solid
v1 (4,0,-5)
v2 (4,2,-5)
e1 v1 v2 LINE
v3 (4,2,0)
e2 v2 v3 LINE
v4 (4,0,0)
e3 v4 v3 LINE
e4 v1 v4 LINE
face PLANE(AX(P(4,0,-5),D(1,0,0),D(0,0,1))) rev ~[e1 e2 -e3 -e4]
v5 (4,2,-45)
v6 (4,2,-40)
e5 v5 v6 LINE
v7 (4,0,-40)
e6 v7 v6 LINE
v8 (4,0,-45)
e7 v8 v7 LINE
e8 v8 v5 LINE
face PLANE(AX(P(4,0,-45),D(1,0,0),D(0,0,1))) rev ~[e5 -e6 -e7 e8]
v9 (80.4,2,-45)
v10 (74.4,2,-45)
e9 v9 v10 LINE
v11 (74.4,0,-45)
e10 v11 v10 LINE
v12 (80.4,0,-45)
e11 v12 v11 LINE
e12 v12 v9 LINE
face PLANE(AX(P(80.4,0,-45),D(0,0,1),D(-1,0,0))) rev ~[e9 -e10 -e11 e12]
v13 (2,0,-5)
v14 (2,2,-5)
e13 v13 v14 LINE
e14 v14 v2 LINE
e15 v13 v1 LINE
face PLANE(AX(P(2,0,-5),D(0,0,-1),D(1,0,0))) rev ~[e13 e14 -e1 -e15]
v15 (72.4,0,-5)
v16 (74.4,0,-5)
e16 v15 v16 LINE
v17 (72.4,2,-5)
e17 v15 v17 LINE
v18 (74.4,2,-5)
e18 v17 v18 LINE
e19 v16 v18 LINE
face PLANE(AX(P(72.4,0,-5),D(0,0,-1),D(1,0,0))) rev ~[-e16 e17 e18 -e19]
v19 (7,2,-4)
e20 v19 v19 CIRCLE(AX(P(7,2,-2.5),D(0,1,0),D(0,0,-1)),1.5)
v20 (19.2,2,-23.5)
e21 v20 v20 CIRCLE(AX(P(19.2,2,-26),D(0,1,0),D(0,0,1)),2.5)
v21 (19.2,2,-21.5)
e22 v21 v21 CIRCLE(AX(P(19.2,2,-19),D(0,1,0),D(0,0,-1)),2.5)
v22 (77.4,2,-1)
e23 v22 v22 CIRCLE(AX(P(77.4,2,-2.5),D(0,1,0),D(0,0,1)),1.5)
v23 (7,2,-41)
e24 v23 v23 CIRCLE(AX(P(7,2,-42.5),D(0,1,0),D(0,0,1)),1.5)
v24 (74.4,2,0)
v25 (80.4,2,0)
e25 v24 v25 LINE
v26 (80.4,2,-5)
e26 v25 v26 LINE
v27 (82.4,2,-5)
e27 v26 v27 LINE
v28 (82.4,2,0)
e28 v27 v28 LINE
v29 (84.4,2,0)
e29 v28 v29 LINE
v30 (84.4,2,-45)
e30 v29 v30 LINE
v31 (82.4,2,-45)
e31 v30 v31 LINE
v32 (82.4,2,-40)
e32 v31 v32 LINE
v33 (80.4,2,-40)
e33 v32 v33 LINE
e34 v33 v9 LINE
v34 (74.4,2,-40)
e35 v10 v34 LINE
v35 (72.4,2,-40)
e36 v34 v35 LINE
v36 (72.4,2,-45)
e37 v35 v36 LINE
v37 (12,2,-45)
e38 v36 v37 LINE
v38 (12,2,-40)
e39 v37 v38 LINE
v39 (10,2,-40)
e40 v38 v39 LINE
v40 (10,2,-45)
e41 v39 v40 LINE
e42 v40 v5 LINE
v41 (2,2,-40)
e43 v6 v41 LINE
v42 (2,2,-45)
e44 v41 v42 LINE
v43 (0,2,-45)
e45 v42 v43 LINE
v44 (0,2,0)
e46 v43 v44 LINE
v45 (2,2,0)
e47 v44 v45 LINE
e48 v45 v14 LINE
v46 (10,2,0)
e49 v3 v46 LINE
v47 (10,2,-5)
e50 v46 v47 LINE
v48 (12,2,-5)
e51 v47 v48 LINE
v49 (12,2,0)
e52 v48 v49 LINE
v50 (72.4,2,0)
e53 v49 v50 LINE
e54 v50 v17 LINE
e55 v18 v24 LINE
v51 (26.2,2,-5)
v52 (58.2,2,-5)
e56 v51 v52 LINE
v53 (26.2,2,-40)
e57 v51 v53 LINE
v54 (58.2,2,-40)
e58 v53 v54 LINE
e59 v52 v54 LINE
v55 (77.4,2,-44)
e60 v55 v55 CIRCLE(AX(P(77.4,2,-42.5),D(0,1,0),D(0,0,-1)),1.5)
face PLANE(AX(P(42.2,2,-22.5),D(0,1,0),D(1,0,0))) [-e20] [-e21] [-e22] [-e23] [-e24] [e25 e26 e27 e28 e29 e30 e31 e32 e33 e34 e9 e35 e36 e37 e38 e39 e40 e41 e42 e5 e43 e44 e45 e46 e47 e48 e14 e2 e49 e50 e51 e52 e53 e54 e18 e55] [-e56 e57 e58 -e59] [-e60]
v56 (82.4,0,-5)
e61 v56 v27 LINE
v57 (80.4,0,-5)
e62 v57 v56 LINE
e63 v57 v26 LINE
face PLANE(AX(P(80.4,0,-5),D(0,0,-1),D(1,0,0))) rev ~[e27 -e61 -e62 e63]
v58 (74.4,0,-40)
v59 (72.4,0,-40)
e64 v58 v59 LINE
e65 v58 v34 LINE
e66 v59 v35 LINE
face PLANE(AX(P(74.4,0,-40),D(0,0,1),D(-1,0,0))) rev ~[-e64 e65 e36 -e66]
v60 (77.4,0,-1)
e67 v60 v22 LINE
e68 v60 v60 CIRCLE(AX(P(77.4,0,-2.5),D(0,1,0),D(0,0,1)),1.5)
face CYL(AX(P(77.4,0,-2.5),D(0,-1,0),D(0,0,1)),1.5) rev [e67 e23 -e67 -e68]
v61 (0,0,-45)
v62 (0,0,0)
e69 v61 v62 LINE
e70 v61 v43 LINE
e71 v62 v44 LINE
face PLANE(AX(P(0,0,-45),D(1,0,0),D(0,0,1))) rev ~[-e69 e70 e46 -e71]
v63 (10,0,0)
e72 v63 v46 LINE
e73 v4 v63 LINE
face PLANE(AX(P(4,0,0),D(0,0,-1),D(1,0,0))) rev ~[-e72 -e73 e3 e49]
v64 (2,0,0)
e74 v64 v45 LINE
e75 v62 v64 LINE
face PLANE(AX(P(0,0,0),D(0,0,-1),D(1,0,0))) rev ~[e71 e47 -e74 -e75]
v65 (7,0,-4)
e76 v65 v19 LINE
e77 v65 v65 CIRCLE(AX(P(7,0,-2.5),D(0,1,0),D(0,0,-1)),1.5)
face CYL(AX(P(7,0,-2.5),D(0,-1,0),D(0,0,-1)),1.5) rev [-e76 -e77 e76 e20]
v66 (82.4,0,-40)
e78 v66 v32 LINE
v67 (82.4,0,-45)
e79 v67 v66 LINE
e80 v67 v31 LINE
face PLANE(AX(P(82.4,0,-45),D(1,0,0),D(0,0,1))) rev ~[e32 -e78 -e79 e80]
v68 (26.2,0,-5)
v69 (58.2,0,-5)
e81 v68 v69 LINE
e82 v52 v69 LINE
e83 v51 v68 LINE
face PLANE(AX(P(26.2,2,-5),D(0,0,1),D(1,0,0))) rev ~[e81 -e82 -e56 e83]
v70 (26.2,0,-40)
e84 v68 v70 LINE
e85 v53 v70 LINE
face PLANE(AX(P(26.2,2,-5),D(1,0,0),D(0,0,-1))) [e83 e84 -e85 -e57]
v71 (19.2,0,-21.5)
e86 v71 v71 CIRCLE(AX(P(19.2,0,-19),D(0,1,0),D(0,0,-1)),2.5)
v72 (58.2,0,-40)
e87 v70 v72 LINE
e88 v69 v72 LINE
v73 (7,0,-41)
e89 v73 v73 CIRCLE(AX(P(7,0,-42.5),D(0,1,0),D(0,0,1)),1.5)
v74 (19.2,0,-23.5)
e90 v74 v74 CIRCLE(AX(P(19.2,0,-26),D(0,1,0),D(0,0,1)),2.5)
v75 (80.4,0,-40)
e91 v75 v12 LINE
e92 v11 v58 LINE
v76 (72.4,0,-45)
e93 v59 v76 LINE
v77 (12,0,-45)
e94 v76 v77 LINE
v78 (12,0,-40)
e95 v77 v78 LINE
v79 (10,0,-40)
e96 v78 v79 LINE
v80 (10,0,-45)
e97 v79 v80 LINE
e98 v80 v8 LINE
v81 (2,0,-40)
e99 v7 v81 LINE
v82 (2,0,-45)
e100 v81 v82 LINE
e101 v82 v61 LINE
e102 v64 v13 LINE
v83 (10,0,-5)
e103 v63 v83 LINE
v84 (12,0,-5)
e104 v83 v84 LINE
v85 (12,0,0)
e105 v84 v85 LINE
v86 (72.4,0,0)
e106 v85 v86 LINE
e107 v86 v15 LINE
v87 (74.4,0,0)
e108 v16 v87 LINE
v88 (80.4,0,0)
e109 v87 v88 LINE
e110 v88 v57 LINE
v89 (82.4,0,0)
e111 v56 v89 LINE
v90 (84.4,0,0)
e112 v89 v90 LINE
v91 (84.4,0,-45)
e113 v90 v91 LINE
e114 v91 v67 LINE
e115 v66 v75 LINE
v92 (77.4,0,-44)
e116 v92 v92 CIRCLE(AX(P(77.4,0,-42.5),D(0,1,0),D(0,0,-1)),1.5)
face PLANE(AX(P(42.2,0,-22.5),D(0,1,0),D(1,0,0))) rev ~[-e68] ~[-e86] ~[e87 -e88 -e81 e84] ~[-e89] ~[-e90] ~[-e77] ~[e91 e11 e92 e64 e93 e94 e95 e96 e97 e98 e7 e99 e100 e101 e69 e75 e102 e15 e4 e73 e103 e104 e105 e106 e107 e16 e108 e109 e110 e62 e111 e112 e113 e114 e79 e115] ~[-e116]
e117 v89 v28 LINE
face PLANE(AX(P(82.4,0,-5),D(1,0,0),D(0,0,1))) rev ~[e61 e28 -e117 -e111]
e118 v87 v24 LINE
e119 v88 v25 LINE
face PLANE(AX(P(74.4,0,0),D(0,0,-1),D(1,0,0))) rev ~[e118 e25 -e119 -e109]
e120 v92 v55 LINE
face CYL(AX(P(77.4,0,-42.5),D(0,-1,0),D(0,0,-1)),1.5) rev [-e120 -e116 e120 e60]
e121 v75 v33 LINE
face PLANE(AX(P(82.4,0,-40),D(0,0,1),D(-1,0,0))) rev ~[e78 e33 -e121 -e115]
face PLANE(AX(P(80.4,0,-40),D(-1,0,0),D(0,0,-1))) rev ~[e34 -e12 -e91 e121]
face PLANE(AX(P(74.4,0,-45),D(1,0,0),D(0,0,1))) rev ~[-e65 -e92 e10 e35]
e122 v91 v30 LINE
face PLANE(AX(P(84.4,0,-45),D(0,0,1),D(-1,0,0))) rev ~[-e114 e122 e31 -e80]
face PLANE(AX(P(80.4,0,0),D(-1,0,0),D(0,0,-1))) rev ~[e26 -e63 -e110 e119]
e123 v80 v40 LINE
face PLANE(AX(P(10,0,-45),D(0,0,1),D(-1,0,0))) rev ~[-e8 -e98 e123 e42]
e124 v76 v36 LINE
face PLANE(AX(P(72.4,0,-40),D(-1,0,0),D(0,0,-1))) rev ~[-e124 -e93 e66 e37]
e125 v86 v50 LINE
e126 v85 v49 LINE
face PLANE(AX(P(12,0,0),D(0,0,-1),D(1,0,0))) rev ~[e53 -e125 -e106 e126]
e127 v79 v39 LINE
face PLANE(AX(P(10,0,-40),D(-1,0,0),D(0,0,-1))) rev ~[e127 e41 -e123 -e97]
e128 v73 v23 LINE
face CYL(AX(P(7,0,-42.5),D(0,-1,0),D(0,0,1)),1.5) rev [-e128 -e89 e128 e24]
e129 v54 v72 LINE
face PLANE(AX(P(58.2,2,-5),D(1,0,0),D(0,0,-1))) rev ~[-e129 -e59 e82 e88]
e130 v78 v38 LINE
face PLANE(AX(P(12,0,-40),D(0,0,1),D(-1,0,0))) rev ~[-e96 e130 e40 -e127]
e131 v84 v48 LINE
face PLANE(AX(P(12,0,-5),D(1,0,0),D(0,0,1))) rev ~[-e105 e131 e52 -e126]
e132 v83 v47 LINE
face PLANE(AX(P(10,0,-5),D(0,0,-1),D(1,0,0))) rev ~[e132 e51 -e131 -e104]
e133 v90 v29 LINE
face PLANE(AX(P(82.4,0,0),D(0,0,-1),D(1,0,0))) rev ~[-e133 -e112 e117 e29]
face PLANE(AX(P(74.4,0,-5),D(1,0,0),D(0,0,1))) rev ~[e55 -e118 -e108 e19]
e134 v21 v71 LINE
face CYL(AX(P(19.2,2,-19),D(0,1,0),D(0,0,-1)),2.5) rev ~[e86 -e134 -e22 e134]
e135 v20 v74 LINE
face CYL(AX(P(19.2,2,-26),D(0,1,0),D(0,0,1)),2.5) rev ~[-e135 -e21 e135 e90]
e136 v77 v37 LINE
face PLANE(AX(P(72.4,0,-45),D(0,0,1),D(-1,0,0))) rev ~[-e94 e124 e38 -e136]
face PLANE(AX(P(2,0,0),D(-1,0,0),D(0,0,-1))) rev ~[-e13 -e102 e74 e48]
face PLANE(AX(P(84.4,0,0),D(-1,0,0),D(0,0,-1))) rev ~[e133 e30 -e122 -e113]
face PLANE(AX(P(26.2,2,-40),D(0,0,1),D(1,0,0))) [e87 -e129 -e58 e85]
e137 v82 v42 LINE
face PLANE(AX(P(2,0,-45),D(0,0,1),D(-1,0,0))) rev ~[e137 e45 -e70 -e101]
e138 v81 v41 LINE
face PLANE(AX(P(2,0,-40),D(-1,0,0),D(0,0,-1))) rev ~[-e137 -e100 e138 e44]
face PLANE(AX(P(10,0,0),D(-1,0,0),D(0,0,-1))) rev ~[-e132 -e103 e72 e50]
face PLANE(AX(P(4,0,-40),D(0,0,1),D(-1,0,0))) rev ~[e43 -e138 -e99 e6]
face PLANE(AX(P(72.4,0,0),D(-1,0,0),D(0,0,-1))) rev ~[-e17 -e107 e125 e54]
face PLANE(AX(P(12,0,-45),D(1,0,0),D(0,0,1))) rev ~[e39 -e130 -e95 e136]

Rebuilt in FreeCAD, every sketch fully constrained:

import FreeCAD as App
import Part
import Sketcher
Q = App.Units.Quantity


def add_polygon(sketch, points):
    """Adds a closed chain of lines whose ends are joined by coincident constraints."""
    first, n = sketch.GeometryCount, len(points)
    for a, b in zip(points, points[1:] + points[:1]):
        sketch.addGeometry(Part.LineSegment(App.Vector(*a, 0), App.Vector(*b, 0)), False)
    for i in range(n):
        sketch.addConstraint(Sketcher.Constraint("Coincident", first + i, 2, first + (i + 1) % n, 1))

doc = App.newDocument("Part")
params = doc.addObject("Spreadsheet::Sheet", "Params")
for row, (alias, value) in enumerate([
    ("sketch1_diameter", "3 mm"),
    ("sketch1_width", "2 mm"),
    ("sketch1_width2", "6 mm"),
    ("sketch1_height", "5 mm"),
    ("sketch1_height2", "45 mm"),
    ("pad1_length", "2 mm"),
    ("sketch2_width", "32 mm"),
    ("sketch2_height", "35 mm"),
    ("pocket1_length", "10 mm"),
    ("sketch3_diameter", "5 mm"),
    ("pocket2_length", "10 mm"),
], start=1):
    params.set(f"A{row}", alias)
    params.set(f"B{row}", "=" + value)
    params.setAlias(f"B{row}", alias)

body = doc.addObject("PartDesign::Body", "Body")

# Sketch on XZ plane
sketch1 = body.newObject("Sketcher::SketchObject", "Sketch")
sketch1.AttachmentSupport = (doc.getObject("XZ_Plane"), [""])
sketch1.MapMode = "FlatFace"
add_polygon(sketch1, [(0, 0), (2, 0), (2, -5), (4, -5), (4, 0), (10, 0), (10, -5), (12, -5), (12, 0), (72.4, 0), (72.4, -5), (74.4, -5), (74.4, 0), (80.4, 0), (80.4, -5), (82.4, -5), (82.4, 0), (84.4, 0), (84.4, -45), (82.4, -45), (82.4, -40), (80.4, -40), (80.4, -45), (74.4, -45), (74.4, -40), (72.4, -40), (72.4, -45), (12, -45), (12, -40), (10, -40), (10, -45), (4, -45), (4, -40), (2, -40), (2, -45), (0, -45)])  # lines 0-35
sketch1.addGeometry(Part.Circle(App.Vector(7, -2.5, 0), App.Vector(0, 0, 1), 1.5), False)  # 36
sketch1.addGeometry(Part.Circle(App.Vector(77.4, -2.5, 0), App.Vector(0, 0, 1), 1.5), False)  # 37
sketch1.addGeometry(Part.Circle(App.Vector(7, -42.5, 0), App.Vector(0, 0, 1), 1.5), False)  # 38
sketch1.addGeometry(Part.Circle(App.Vector(77.4, -42.5, 0), App.Vector(0, 0, 1), 1.5), False)  # 39
sketch1.addConstraint([
    Sketcher.Constraint("Horizontal", 0),
    Sketcher.Constraint("Vertical", 1),
    Sketcher.Constraint("Horizontal", 2),
    Sketcher.Constraint("Vertical", 3),
    Sketcher.Constraint("Horizontal", 4),
    Sketcher.Constraint("Vertical", 5),
    Sketcher.Constraint("Horizontal", 6),
    Sketcher.Constraint("Vertical", 7),
    Sketcher.Constraint("Horizontal", 8),
    Sketcher.Constraint("Vertical", 9),
    Sketcher.Constraint("Horizontal", 10),
    Sketcher.Constraint("Vertical", 11),
    Sketcher.Constraint("Horizontal", 12),
    Sketcher.Constraint("Vertical", 13),
    Sketcher.Constraint("Horizontal", 14),
    Sketcher.Constraint("Vertical", 15),
    Sketcher.Constraint("Horizontal", 16),
    Sketcher.Constraint("Vertical", 17),
    Sketcher.Constraint("Horizontal", 18),
    Sketcher.Constraint("Vertical", 19),
    Sketcher.Constraint("Horizontal", 20),
    Sketcher.Constraint("Vertical", 21),
    Sketcher.Constraint("Horizontal", 22),
    Sketcher.Constraint("Vertical", 23),
    Sketcher.Constraint("Horizontal", 24),
    Sketcher.Constraint("Vertical", 25),
    Sketcher.Constraint("Horizontal", 26),
    Sketcher.Constraint("Vertical", 27),
    Sketcher.Constraint("Horizontal", 28),
    Sketcher.Constraint("Vertical", 29),
    Sketcher.Constraint("Horizontal", 30),
    Sketcher.Constraint("Vertical", 31),
    Sketcher.Constraint("Horizontal", 32),
    Sketcher.Constraint("Vertical", 33),
    Sketcher.Constraint("Horizontal", 34),
    Sketcher.Constraint("Vertical", 35),
    Sketcher.Constraint("Coincident", 35, 2, -1, 1),
    Sketcher.Constraint("Equal", 36, 37),
    Sketcher.Constraint("Equal", 37, 38),
    Sketcher.Constraint("Equal", 38, 39),
    Sketcher.Constraint("PointOnObject", 3, 2, -1),
    Sketcher.Constraint("PointOnObject", 7, 2, -1),
    Sketcher.Constraint("PointOnObject", 11, 2, -1),
    Sketcher.Constraint("PointOnObject", 15, 2, -1),
    Sketcher.Constraint("Horizontal", 36, 3, 37, 3),
    Sketcher.Constraint("Horizontal", 38, 3, 39, 3),
    Sketcher.Constraint("Horizontal", 2, 2, 5, 2),
    Sketcher.Constraint("Horizontal", 6, 2, 9, 2),
    Sketcher.Constraint("Horizontal", 10, 2, 13, 2),
    Sketcher.Constraint("Horizontal", 18, 2, 21, 2),
    Sketcher.Constraint("Horizontal", 20, 2, 23, 2),
    Sketcher.Constraint("Horizontal", 22, 2, 25, 2),
    Sketcher.Constraint("Horizontal", 24, 2, 27, 2),
    Sketcher.Constraint("Horizontal", 26, 2, 29, 2),
    Sketcher.Constraint("Horizontal", 28, 2, 31, 2),
    Sketcher.Constraint("Horizontal", 30, 2, 33, 2),
    Sketcher.Constraint("Vertical", 36, 3, 38, 3),
    Sketcher.Constraint("Vertical", 37, 3, 39, 3),
    Sketcher.Constraint("Vertical", 15, 2, 18, 2),
    Sketcher.Constraint("Vertical", 13, 2, 20, 2),
    Sketcher.Constraint("Vertical", 11, 2, 22, 2),
    Sketcher.Constraint("Vertical", 9, 2, 24, 2),
    Sketcher.Constraint("Vertical", 7, 2, 26, 2),
    Sketcher.Constraint("Vertical", 5, 2, 28, 2),
    Sketcher.Constraint("Vertical", 3, 2, 30, 2),
    Sketcher.Constraint("Vertical", 1, 2, 32, 2),
    Sketcher.Constraint("Equal", 0, 2),
    Sketcher.Constraint("Equal", 2, 6),
    Sketcher.Constraint("Equal", 6, 10),
    Sketcher.Constraint("Equal", 4, 12),
    Sketcher.Constraint("Equal", 10, 14),
    Sketcher.Constraint("Equal", 14, 16),
    Sketcher.Constraint("Equal", 15, 19),
    Sketcher.Constraint("Diameter", 36, Q("3 mm")),
    Sketcher.Constraint("DistanceX", 0, 1, 0, 2, Q("2 mm")),
    Sketcher.Constraint("DistanceX", 4, 1, 4, 2, Q("6 mm")),
    Sketcher.Constraint("DistanceY", 1, 2, 1, 1, Q("5 mm")),
    Sketcher.Constraint("DistanceY", 17, 2, 17, 1, Q("45 mm")),
    Sketcher.Constraint("DistanceX", 8, 1, 8, 2, Q("60.4 mm")),
    Sketcher.Constraint("DistanceX", -1, 1, 36, 3, Q("7 mm")),
    Sketcher.Constraint("DistanceY", 38, 3, 36, 3, Q("40 mm")),
    Sketcher.Constraint("DistanceX", 8, 2, 37, 3, Q("5 mm")),
    Sketcher.Constraint("DistanceY", 36, 3, -1, 1, Q("2.5 mm")),
])
sketch1.setExpression("Constraints[109]", "Params.sketch1_diameter")
sketch1.setExpression("Constraints[110]", "Params.sketch1_width")
sketch1.setExpression("Constraints[111]", "Params.sketch1_width2")
sketch1.setExpression("Constraints[112]", "Params.sketch1_height")
sketch1.setExpression("Constraints[113]", "Params.sketch1_height2")
pad1 = body.newObject("PartDesign::Pad", "Pad")
pad1.Profile = sketch1
pad1.setExpression("Length", "Params.pad1_length")
pad1.Reversed = True

# Sketch on XZ plane
sketch2 = body.newObject("Sketcher::SketchObject", "Sketch001")
sketch2.AttachmentSupport = (doc.getObject("XZ_Plane"), [""])
sketch2.MapMode = "FlatFace"
sketch2.AttachmentOffset = App.Placement(App.Vector(0, 0, -2), App.Rotation())
add_polygon(sketch2, [(26, -40), (26, -5), (58, -5), (58, -40)])  # lines 0-3
sketch2.addConstraint([
    Sketcher.Constraint("Vertical", 0),
    Sketcher.Constraint("Horizontal", 1),
    Sketcher.Constraint("Vertical", 2),
    Sketcher.Constraint("Horizontal", 3),
    Sketcher.Constraint("DistanceX", 1, 1, 1, 2, Q("32 mm")),
    Sketcher.Constraint("DistanceY", 0, 1, 0, 2, Q("35 mm")),
    Sketcher.Constraint("DistanceY", 0, 2, -1, 1, Q("5 mm")),
    Sketcher.Constraint("DistanceX", -1, 1, 0, 2, Q("26.2 mm")),
])
sketch2.setExpression("Constraints[8]", "Params.sketch2_width")
sketch2.setExpression("Constraints[9]", "Params.sketch2_height")
pocket1 = body.newObject("PartDesign::Pocket", "Pocket")
pocket1.Profile = sketch2
pocket1.setExpression("Length", "Params.pocket1_length")
pocket1.Reversed = True

# Sketch on XZ plane
sketch3 = body.newObject("Sketcher::SketchObject", "Sketch002")
sketch3.AttachmentSupport = (doc.getObject("XZ_Plane"), [""])
sketch3.MapMode = "FlatFace"
sketch3.AttachmentOffset = App.Placement(App.Vector(0, 0, -2), App.Rotation())
sketch3.addGeometry([
    Part.Circle(App.Vector(19.2, -26, 0), App.Vector(0, 0, 1), 2.5),
    Part.Circle(App.Vector(19.2, -19, 0), App.Vector(0, 0, 1), 2.5),
], False)
sketch3.addConstraint([
    Sketcher.Constraint("Equal", 0, 1),
    Sketcher.Constraint("Vertical", 0, 3, 1, 3),
    Sketcher.Constraint("Diameter", 0, Q("5 mm")),
    Sketcher.Constraint("DistanceY", 0, 3, -1, 1, Q("26 mm")),
    Sketcher.Constraint("DistanceY", 1, 3, -1, 1, Q("19 mm")),
    Sketcher.Constraint("DistanceX", -1, 1, 0, 3, Q("19.2 mm")),
])
sketch3.setExpression("Constraints[2]", "Params.sketch3_diameter")
pocket2 = body.newObject("PartDesign::Pocket", "Pocket001")
pocket2.Profile = sketch3
pocket2.setExpression("Length", "Params.pocket2_length")
pocket2.Reversed = True

doc.recompute()
